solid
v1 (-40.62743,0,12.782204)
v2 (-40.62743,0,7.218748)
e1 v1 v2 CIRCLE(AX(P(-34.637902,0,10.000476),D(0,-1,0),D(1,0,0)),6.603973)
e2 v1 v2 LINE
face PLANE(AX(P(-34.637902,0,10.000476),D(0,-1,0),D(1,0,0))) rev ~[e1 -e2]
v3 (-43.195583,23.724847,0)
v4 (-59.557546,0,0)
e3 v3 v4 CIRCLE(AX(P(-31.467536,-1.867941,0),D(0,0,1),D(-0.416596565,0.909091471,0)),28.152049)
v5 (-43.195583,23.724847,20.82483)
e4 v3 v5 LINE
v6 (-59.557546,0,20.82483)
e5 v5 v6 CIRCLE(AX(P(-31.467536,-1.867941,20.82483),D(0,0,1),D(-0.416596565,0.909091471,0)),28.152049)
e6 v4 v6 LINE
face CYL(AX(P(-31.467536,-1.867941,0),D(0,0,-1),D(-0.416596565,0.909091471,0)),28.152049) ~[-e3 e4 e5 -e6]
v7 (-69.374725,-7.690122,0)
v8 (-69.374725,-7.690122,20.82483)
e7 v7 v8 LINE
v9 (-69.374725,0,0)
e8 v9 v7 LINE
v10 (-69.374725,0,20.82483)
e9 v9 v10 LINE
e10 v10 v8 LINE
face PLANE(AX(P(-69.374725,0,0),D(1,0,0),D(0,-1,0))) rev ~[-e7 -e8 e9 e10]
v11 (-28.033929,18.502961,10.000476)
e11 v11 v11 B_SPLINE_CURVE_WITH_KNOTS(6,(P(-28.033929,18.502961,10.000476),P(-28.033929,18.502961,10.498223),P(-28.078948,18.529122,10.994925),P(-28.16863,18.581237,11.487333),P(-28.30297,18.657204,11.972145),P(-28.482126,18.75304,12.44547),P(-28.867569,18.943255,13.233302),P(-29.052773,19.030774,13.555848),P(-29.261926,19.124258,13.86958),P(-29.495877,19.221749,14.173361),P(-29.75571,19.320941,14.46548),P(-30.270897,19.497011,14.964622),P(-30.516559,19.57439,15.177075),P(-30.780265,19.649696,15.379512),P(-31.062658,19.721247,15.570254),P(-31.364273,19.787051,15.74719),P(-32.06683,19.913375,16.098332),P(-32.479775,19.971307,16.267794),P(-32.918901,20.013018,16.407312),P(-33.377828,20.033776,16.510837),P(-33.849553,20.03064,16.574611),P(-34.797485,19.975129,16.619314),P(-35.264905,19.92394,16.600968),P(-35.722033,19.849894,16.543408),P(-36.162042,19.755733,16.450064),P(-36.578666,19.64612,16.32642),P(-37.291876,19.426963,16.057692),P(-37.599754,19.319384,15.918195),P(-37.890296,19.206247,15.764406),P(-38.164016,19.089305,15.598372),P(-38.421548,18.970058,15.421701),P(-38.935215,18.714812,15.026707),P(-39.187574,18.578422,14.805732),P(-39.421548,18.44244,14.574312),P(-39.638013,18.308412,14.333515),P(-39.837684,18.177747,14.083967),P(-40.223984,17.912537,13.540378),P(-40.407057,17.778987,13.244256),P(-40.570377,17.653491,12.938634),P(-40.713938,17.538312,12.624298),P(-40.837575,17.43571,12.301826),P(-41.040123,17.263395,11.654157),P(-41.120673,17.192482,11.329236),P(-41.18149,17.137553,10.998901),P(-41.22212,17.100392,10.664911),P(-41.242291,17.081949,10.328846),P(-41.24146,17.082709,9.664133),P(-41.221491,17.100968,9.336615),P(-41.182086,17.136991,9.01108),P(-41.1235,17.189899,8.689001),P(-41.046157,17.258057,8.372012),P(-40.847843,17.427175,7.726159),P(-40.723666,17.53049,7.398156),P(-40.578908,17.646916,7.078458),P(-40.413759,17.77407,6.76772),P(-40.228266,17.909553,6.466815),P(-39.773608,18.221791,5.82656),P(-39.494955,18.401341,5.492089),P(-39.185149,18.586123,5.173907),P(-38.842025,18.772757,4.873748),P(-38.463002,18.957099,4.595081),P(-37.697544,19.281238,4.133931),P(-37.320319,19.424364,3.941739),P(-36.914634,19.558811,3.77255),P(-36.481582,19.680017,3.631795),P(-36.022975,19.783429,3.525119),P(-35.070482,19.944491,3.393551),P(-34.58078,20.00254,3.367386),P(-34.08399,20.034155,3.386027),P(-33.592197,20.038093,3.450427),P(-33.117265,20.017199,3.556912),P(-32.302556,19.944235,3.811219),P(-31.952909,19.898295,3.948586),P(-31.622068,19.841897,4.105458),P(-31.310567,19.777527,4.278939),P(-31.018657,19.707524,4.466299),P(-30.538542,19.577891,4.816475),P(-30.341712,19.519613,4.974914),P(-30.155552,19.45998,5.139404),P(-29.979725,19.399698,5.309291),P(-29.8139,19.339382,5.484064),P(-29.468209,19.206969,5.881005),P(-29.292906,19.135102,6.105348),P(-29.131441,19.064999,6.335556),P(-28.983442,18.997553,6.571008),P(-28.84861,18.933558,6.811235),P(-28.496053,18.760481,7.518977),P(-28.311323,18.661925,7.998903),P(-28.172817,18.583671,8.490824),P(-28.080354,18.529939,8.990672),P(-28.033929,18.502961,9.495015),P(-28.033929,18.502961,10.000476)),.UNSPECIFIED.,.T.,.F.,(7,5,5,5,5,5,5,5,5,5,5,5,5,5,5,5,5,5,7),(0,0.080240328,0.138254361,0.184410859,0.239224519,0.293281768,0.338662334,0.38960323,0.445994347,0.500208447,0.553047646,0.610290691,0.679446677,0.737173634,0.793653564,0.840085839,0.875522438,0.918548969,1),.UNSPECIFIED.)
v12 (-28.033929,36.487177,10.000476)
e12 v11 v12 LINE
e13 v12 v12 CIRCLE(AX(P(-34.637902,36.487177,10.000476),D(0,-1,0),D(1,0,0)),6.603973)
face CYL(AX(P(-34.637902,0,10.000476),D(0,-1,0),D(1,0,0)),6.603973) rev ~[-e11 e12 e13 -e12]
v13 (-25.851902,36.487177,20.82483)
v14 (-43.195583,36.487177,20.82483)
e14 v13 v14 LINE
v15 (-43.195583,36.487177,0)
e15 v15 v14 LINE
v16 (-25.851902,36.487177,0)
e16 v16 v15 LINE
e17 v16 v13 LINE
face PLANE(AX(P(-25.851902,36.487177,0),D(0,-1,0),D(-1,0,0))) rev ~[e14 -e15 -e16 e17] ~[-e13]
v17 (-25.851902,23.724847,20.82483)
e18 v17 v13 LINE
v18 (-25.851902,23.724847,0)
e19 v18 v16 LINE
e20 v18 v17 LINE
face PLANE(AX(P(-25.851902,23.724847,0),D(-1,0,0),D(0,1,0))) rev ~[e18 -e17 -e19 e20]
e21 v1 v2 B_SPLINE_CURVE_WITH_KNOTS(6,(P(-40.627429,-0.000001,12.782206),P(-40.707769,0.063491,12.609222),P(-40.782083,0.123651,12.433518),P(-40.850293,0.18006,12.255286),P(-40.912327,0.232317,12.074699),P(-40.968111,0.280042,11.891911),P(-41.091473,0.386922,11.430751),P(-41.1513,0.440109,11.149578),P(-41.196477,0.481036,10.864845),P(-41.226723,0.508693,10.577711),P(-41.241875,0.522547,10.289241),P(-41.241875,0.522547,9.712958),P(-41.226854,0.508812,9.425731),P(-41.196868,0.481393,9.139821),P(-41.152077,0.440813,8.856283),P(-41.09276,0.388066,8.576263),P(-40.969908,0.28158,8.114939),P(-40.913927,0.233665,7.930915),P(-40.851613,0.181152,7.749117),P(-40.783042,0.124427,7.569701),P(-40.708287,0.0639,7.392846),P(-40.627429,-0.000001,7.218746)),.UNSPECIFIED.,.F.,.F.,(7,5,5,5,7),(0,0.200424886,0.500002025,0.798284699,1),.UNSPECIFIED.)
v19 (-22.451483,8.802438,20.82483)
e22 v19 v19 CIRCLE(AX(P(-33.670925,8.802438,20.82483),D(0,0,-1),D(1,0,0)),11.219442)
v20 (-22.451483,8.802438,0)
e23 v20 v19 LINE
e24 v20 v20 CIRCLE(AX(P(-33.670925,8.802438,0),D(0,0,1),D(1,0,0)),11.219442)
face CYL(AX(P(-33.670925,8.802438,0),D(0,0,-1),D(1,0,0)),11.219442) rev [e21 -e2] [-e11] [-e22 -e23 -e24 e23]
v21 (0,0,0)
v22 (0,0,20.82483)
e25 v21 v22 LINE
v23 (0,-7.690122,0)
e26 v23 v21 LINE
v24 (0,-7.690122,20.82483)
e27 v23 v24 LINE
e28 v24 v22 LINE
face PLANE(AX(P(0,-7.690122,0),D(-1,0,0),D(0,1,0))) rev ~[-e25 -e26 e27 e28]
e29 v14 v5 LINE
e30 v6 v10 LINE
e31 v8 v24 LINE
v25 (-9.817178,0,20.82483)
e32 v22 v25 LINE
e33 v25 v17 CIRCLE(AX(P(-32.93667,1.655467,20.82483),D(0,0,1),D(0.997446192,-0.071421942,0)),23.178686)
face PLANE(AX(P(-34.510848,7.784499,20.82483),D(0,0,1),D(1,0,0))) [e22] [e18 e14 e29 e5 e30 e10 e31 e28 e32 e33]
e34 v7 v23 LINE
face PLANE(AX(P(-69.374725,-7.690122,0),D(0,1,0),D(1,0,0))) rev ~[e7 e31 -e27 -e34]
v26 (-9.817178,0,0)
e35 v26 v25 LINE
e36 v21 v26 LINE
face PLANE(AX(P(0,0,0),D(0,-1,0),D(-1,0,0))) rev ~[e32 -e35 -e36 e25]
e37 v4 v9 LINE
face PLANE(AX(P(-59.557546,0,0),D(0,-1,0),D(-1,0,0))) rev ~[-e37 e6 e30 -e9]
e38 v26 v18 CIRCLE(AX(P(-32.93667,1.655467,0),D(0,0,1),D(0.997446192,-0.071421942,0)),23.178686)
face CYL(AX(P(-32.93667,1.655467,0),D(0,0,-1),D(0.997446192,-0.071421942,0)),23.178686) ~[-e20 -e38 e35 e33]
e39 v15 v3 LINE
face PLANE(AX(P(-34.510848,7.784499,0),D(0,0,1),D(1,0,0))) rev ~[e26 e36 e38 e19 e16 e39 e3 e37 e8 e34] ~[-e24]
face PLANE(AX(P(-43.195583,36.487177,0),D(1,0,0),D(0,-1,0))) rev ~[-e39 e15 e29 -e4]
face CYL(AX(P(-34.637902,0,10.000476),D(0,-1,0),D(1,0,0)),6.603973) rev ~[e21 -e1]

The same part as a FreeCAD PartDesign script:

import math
import FreeCAD as App
import Part
import Sketcher

V = App.Vector
Q = App.Units.Quantity

doc = App.newDocument("Part")
body = doc.addObject("PartDesign::Body", "Body")

sketch1 = body.newObject("Sketcher::SketchObject", "Sketch")
sketch1.AttachmentSupport = (doc.getObject("XY_Plane"), [""])
sketch1.MapMode = "FlatFace"
sketch1.addGeometry(Part.LineSegment(V(0, 0, 0), V(-10, 0, 0)), False)
sketch1.addGeometry(Part.ArcOfCircle(Part.Circle(V(-33, 2, 0), V(0, 0, 1), 23), math.radians(-4), math.radians(72)), False)
sketch1.addGeometry(Part.LineSegment(V(-26, 24, 0), V(-26, 36, 0)), False)
sketch1.addGeometry(Part.LineSegment(V(-26, 36, 0), V(-43, 36, 0)), False)
sketch1.addGeometry(Part.LineSegment(V(-43, 36, 0), V(-43, 24, 0)), False)
sketch1.addGeometry(Part.ArcOfCircle(Part.Circle(V(-31, -2, 0), V(0, 0, 1), 28), math.radians(115), math.radians(176)), False)
sketch1.addGeometry(Part.LineSegment(V(-60, 0, 0), V(-69, 0, 0)), False)
sketch1.addGeometry(Part.LineSegment(V(-69, 0, 0), V(-69, -8, 0)), False)
sketch1.addGeometry(Part.LineSegment(V(-69, -8, 0), V(0, -8, 0)), False)
sketch1.addGeometry(Part.LineSegment(V(0, -8, 0), V(0, 0, 0)), False)
sketch1.addConstraint(Sketcher.Constraint("Coincident", 0, 2, 1, 1))
sketch1.addConstraint(Sketcher.Constraint("Coincident", 1, 2, 2, 1))
sketch1.addConstraint(Sketcher.Constraint("Coincident", 2, 2, 3, 1))
sketch1.addConstraint(Sketcher.Constraint("Coincident", 3, 2, 4, 1))
sketch1.addConstraint(Sketcher.Constraint("Coincident", 4, 2, 5, 1))
sketch1.addConstraint(Sketcher.Constraint("Coincident", 5, 2, 6, 1))
sketch1.addConstraint(Sketcher.Constraint("Coincident", 6, 2, 7, 1))
sketch1.addConstraint(Sketcher.Constraint("Coincident", 7, 2, 8, 1))
sketch1.addConstraint(Sketcher.Constraint("Coincident", 8, 2, 9, 1))
sketch1.addConstraint(Sketcher.Constraint("Coincident", 9, 2, 0, 1))
sketch1.addConstraint(Sketcher.Constraint("Horizontal", 0))
sketch1.addConstraint(Sketcher.Constraint("Vertical", 2))
sketch1.addConstraint(Sketcher.Constraint("Horizontal", 3))
sketch1.addConstraint(Sketcher.Constraint("Vertical", 4))
sketch1.addConstraint(Sketcher.Constraint("Horizontal", 6))
sketch1.addConstraint(Sketcher.Constraint("Vertical", 7))
sketch1.addConstraint(Sketcher.Constraint("Horizontal", 8))
sketch1.addConstraint(Sketcher.Constraint("Vertical", 9))
sketch1.addConstraint(Sketcher.Constraint("Coincident", 9, 2, -1, 1))
sketch1.addConstraint(Sketcher.Constraint("PointOnObject", 5, 2, -1))
sketch1.addConstraint(Sketcher.Constraint("Horizontal", 1, 2, 4, 2))
sketch1.addConstraint(Sketcher.Constraint("Equal", 0, 6))
sketch1.addConstraint(Sketcher.Constraint("Radius", 5, 28.152049))
sketch1.addConstraint(Sketcher.Constraint("Radius", 1, 23.178686))
sketch1.addConstraint(Sketcher.Constraint("DistanceX", 3, 2, 3, 1, 17.343681))
sketch1.addConstraint(Sketcher.Constraint("DistanceX", 6, 2, 6, 1, 9.817179))
sketch1.addConstraint(Sketcher.Constraint("DistanceY", 2, 1, 2, 2, 12.76233))
sketch1.addConstraint(Sketcher.Constraint("DistanceY", 7, 2, 7, 1, 7.690122))
sketch1.addConstraint(Sketcher.Constraint("DistanceX", 2, 2, -1, 1, 25.851902))
sketch1.addConstraint(Sketcher.Constraint("DistanceY", 8, 2, 2, 2, 44.177299))
sketch1.addConstraint(Sketcher.Constraint("DistanceX", 8, 1, 8, 2, 69.374725))
pad1 = body.newObject("PartDesign::Pad", "Pad")
pad1.Profile = sketch1
pad1.Length = 20.82483

sketch2 = body.newObject("Sketcher::SketchObject", "Sketch001")
sketch2.AttachmentSupport = (doc.getObject("XY_Plane"), [""])
sketch2.MapMode = "FlatFace"
sketch2.addGeometry(Part.Circle(V(-34, 9, 0), V(0, 0, 1), 11), False)
sketch2.addConstraint(Sketcher.Constraint("Diameter", 0, 22.438884))
sketch2.addConstraint(Sketcher.Constraint("DistanceX", 0, 3, -1, 1, 33.670925))
sketch2.addConstraint(Sketcher.Constraint("DistanceY", -1, 1, 0, 3, 8.802438))
pocket1 = body.newObject("PartDesign::Pocket", "Pocket")
pocket1.Profile = sketch2
pocket1.Length = Q("1 in")
pocket1.Reversed = True

sketch3 = body.newObject("Sketcher::SketchObject", "Sketch002")
sketch3.AttachmentSupport = (doc.getObject("XZ_Plane"), [""])
sketch3.MapMode = "FlatFace"
sketch3.addGeometry(Part.Circle(V(-35, 10, 0), V(0, 0, 1), 7), False)
sketch3.addConstraint(Sketcher.Constraint("Diameter", 0, 13.207946))
sketch3.addConstraint(Sketcher.Constraint("DistanceX", 0, 3, -1, 1, 34.637902))
sketch3.addConstraint(Sketcher.Constraint("DistanceY", -1, 1, 0, 3, 10.000476))
pocket2 = body.newObject("PartDesign::Pocket", "Pocket001")
pocket2.Profile = sketch3
pocket2.Length = 39.32976

doc.recompute()
